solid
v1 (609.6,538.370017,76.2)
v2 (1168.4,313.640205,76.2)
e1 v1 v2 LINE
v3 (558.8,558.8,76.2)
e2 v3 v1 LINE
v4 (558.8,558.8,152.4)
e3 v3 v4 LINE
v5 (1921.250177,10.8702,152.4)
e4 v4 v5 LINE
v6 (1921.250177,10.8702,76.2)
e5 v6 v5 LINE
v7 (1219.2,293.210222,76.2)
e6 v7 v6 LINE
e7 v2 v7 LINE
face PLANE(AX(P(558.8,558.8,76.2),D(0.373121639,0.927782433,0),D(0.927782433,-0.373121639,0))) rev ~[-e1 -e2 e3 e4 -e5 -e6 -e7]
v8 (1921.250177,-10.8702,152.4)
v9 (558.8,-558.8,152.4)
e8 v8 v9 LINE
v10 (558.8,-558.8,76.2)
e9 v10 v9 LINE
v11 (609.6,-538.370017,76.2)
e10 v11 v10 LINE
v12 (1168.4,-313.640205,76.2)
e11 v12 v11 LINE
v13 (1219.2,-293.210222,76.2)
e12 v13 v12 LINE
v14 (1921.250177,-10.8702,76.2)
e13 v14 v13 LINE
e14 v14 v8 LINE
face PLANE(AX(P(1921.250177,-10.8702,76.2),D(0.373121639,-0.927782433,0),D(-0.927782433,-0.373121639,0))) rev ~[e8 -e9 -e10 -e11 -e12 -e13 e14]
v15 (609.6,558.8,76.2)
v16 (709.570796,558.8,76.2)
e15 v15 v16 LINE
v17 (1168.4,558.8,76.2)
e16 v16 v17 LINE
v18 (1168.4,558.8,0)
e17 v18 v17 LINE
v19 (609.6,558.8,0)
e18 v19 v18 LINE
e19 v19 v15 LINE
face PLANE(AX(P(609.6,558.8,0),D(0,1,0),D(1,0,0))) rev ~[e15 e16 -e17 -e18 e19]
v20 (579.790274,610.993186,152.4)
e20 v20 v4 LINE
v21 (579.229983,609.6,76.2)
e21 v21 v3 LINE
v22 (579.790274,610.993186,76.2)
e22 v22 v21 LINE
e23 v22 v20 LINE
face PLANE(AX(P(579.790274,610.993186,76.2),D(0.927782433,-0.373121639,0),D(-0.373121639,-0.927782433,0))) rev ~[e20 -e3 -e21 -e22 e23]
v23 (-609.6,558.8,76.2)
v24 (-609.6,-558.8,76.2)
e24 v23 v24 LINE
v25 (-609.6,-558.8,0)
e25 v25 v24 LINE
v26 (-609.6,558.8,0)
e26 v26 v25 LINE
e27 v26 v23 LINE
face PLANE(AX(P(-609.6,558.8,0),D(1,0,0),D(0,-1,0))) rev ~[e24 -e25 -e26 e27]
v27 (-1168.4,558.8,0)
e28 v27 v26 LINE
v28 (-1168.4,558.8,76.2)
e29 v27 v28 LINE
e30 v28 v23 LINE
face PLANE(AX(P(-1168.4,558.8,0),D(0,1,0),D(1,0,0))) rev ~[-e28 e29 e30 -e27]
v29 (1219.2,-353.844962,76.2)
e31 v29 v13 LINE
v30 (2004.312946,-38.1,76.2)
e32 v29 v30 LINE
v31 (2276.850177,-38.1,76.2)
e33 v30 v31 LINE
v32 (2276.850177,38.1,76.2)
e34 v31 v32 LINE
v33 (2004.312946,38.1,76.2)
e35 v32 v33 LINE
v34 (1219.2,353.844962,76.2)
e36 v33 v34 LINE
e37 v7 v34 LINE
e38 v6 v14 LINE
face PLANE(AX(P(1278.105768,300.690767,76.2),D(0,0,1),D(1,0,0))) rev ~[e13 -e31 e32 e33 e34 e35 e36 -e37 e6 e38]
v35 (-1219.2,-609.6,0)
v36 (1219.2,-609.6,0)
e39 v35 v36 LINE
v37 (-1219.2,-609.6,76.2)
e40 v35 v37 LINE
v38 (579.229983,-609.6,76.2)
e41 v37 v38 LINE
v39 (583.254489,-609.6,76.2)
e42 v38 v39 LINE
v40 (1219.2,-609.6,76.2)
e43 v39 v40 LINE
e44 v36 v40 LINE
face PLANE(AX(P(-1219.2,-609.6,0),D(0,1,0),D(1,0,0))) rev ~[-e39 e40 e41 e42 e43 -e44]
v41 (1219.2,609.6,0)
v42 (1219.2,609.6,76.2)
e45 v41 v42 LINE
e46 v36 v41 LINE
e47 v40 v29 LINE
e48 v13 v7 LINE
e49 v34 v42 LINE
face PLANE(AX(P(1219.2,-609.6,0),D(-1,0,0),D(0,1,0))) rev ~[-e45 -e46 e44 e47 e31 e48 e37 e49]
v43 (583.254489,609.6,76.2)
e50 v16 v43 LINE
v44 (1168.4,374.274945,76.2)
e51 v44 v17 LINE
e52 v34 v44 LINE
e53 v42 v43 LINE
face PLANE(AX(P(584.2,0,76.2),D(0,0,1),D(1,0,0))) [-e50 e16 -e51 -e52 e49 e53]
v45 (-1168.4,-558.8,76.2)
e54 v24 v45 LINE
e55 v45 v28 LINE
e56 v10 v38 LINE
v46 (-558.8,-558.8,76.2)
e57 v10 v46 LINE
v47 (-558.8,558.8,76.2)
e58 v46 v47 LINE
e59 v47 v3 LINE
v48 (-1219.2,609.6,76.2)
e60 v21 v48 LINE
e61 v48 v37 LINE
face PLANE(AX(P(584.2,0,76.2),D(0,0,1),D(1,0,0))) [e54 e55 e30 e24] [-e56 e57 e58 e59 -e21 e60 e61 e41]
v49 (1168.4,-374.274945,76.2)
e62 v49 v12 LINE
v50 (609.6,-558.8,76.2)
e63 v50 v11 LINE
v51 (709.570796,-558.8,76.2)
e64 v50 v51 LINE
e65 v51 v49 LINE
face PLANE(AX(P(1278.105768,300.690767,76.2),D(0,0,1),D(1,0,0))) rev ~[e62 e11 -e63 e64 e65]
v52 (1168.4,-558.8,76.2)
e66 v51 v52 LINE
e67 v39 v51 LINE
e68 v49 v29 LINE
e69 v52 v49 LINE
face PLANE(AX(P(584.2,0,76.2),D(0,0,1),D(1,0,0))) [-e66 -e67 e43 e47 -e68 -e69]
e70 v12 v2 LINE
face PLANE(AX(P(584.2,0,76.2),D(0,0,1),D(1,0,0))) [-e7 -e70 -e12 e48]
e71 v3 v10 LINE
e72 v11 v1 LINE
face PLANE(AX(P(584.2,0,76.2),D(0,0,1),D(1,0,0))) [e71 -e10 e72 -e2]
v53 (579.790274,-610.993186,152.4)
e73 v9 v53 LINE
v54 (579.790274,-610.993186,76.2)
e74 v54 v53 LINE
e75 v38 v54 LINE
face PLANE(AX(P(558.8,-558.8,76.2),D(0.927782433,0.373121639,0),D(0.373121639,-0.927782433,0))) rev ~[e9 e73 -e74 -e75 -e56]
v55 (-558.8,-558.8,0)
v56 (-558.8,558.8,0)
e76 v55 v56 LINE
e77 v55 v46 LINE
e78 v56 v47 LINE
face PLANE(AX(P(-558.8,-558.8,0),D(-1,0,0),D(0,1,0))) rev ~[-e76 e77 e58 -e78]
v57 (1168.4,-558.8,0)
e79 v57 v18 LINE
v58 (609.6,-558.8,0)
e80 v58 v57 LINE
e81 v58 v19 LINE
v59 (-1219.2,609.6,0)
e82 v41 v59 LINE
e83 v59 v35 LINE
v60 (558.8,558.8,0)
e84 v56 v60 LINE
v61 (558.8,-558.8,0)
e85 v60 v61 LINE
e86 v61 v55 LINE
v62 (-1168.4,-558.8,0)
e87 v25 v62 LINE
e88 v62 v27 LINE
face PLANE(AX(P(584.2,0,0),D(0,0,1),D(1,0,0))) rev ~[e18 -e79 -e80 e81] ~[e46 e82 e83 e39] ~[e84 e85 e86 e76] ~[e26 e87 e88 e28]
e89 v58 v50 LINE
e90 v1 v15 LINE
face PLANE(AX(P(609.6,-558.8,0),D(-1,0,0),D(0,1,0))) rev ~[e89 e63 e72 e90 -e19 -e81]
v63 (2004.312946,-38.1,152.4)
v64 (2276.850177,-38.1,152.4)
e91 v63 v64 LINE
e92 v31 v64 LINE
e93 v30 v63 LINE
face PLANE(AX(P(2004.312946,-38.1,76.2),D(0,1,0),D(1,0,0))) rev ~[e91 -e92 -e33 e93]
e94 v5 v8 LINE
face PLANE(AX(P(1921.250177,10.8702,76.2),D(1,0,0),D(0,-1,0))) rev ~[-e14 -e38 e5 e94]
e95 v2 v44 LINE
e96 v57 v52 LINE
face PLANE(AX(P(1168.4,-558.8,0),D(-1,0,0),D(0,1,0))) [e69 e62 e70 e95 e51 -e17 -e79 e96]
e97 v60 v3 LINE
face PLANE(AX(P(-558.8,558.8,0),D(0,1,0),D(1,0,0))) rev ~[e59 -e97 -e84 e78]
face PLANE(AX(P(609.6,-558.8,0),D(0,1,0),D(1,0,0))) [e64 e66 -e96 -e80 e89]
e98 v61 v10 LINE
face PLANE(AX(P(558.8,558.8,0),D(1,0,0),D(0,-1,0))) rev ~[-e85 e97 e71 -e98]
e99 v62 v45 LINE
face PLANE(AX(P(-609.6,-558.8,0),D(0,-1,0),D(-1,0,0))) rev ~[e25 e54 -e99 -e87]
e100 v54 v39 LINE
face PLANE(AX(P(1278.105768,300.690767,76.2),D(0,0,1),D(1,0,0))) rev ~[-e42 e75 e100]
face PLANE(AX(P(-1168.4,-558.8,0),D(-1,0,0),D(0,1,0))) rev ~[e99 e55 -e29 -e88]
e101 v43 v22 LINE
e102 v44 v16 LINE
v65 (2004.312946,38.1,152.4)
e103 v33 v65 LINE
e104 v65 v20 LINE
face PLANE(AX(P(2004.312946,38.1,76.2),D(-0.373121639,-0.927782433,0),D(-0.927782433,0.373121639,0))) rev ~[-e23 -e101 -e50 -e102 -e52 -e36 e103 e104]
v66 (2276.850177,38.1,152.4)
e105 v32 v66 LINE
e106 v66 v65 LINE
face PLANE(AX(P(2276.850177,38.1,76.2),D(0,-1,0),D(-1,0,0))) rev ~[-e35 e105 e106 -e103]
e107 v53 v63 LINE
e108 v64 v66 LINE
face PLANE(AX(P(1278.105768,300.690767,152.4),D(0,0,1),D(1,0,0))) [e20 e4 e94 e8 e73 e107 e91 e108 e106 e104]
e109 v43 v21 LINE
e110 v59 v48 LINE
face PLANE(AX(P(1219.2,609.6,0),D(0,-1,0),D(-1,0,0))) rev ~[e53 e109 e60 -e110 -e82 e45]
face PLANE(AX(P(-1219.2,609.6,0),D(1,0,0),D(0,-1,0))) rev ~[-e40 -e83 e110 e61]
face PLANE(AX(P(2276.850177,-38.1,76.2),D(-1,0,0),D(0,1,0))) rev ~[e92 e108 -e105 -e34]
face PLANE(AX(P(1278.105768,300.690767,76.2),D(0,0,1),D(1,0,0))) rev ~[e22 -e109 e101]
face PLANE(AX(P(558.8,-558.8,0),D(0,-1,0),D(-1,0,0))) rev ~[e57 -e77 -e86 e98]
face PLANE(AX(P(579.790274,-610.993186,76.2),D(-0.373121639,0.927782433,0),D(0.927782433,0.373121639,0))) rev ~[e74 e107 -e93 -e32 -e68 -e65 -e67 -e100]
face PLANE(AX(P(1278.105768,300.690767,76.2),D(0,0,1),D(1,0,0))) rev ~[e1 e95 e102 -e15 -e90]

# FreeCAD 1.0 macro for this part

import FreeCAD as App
import Part
import Sketcher

V = App.Vector
Q = App.Units.Quantity


def add_polygon(sketch, points):
    """Adds a closed chain of lines whose ends are joined by coincident constraints."""
    first, n = sketch.GeometryCount, len(points)
    for a, b in zip(points, points[1:] + points[:1]):
        sketch.addGeometry(Part.LineSegment(App.Vector(*a, 0), App.Vector(*b, 0)), False)
    for i in range(n):
        sketch.addConstraint(Sketcher.Constraint("Coincident", first + i, 2, first + (i + 1) % n, 1))

doc = App.newDocument("Part")
body = doc.addObject("PartDesign::Body", "Body")

sketch1 = body.newObject("Sketcher::SketchObject", "Sketch")
sketch1.AttachmentSupport = (doc.getObject("XY_Plane"), [""])
sketch1.MapMode = "FlatFace"
add_polygon(sketch1, [(-1219, -610), (1219, -610), (1219, 610), (-1219, 610)])
add_polygon(sketch1, [(-1168, 559), (-610, 559), (-610, -559), (-1168, -559)])
add_polygon(sketch1, [(-559, 559), (559, 559), (559, -559), (-559, -559)])
add_polygon(sketch1, [(1168, 559), (1168, -559), (610, -559), (610, 559)])
sketch1.addConstraint(Sketcher.Constraint("Horizontal", 0))
sketch1.addConstraint(Sketcher.Constraint("Vertical", 1))
sketch1.addConstraint(Sketcher.Constraint("Horizontal", 2))
sketch1.addConstraint(Sketcher.Constraint("Vertical", 3))
sketch1.addConstraint(Sketcher.Constraint("Horizontal", 4))
sketch1.addConstraint(Sketcher.Constraint("Vertical", 5))
sketch1.addConstraint(Sketcher.Constraint("Horizontal", 6))
sketch1.addConstraint(Sketcher.Constraint("Vertical", 7))
sketch1.addConstraint(Sketcher.Constraint("Horizontal", 8))
sketch1.addConstraint(Sketcher.Constraint("Vertical", 9))
sketch1.addConstraint(Sketcher.Constraint("Horizontal", 10))
sketch1.addConstraint(Sketcher.Constraint("Vertical", 11))
sketch1.addConstraint(Sketcher.Constraint("Vertical", 12))
sketch1.addConstraint(Sketcher.Constraint("Horizontal", 13))
sketch1.addConstraint(Sketcher.Constraint("Vertical", 14))
sketch1.addConstraint(Sketcher.Constraint("Horizontal", 15))
sketch1.addConstraint(Sketcher.Constraint("Symmetric", 0, 2, 2, 2, -1, 1))
sketch1.addConstraint(Sketcher.Constraint("Symmetric", 8, 2, 10, 2, -1, 1))
sketch1.addConstraint(Sketcher.Constraint("Symmetric", 7, 2, 12, 2, -1, 1))
sketch1.addConstraint(Sketcher.Constraint("Symmetric", 5, 2, 14, 2, -1, 1))
sketch1.addConstraint(Sketcher.Constraint("Horizontal", 7, 2, 8, 2))
sketch1.addConstraint(Sketcher.Constraint("Horizontal", 6, 2, 9, 2))
sketch1.addConstraint(Sketcher.Constraint("Equal", 10, 5))
sketch1.addConstraint(Sketcher.Constraint("DistanceX", 0, 1, 0, 2, Q("96 in")))
sketch1.addConstraint(Sketcher.Constraint("DistanceX", 4, 1, 4, 2, Q("22 in")))
sketch1.addConstraint(Sketcher.Constraint("DistanceX", 8, 1, 8, 2, Q("44 in")))
sketch1.addConstraint(Sketcher.Constraint("DistanceY", 1, 1, 1, 2, Q("48 in")))
sketch1.addConstraint(Sketcher.Constraint("DistanceX", 4, 2, -1, 1, Q("24 in")))
pad1 = body.newObject("PartDesign::Pad", "Pad")
pad1.Profile = sketch1
pad1.Length = Q("3 in")

sketch2 = body.newObject("Sketcher::SketchObject", "Sketch001")
sketch2.AttachmentSupport = (doc.getObject("XY_Plane"), [""])
sketch2.MapMode = "FlatFace"
sketch2.AttachmentOffset = App.Placement(V(0, 0, 3 * 25.4), App.Rotation())
add_polygon(sketch2, [(580, 611), (559, 559), (1921, 11), (1921, -11), (559, -559), (580, -611), (2004, -38), (2277, -38), (2277, 38), (2004, 38)])
sketch2.addConstraint(Sketcher.Constraint("Vertical", 2))
sketch2.addConstraint(Sketcher.Constraint("Horizontal", 6))
sketch2.addConstraint(Sketcher.Constraint("Vertical", 7))
sketch2.addConstraint(Sketcher.Constraint("Horizontal", 8))
sketch2.addConstraint(Sketcher.Constraint("Symmetric", 0, 2, 3, 2, -1))
sketch2.addConstraint(Sketcher.Constraint("Symmetric", 5, 2, 8, 2, -1))
sketch2.addConstraint(Sketcher.Constraint("Symmetric", 4, 2, 9, 2, -1))
sketch2.addConstraint(Sketcher.Constraint("Perpendicular", 0, 1))
sketch2.addConstraint(Sketcher.Constraint("Perpendicular", 3, 4))
sketch2.addConstraint(Sketcher.Constraint("Perpendicular", 4, 5))
sketch2.addConstraint(Sketcher.Constraint("DistanceY", 7, 1, 7, 2, Q("3 in")))
sketch2.addConstraint(Sketcher.Constraint("DistanceX", -1, 1, 0, 2, Q("22 in")))
sketch2.addConstraint(Sketcher.Constraint("DistanceY", -1, 1, 0, 2, Q("22 in")))
sketch2.addConstraint(Sketcher.Constraint("DistanceX", 2, 2, 6, 2, Q("14 in")))
sketch2.addConstraint(Sketcher.Constraint("DistanceY", 2, 2, 2, 1, Q("21.740401 mm")))
sketch2.addConstraint(Sketcher.Constraint("DistanceX", 6, 1, 6, 2, Q("272.537231 mm")))
sketch2.addConstraint(Sketcher.Constraint("Distance", 0, Q("56.255846 mm")))
pad2 = body.newObject("PartDesign::Pad", "Pad001")
pad2.Profile = sketch2
pad2.Length = Q("3 in")

doc.recompute()
